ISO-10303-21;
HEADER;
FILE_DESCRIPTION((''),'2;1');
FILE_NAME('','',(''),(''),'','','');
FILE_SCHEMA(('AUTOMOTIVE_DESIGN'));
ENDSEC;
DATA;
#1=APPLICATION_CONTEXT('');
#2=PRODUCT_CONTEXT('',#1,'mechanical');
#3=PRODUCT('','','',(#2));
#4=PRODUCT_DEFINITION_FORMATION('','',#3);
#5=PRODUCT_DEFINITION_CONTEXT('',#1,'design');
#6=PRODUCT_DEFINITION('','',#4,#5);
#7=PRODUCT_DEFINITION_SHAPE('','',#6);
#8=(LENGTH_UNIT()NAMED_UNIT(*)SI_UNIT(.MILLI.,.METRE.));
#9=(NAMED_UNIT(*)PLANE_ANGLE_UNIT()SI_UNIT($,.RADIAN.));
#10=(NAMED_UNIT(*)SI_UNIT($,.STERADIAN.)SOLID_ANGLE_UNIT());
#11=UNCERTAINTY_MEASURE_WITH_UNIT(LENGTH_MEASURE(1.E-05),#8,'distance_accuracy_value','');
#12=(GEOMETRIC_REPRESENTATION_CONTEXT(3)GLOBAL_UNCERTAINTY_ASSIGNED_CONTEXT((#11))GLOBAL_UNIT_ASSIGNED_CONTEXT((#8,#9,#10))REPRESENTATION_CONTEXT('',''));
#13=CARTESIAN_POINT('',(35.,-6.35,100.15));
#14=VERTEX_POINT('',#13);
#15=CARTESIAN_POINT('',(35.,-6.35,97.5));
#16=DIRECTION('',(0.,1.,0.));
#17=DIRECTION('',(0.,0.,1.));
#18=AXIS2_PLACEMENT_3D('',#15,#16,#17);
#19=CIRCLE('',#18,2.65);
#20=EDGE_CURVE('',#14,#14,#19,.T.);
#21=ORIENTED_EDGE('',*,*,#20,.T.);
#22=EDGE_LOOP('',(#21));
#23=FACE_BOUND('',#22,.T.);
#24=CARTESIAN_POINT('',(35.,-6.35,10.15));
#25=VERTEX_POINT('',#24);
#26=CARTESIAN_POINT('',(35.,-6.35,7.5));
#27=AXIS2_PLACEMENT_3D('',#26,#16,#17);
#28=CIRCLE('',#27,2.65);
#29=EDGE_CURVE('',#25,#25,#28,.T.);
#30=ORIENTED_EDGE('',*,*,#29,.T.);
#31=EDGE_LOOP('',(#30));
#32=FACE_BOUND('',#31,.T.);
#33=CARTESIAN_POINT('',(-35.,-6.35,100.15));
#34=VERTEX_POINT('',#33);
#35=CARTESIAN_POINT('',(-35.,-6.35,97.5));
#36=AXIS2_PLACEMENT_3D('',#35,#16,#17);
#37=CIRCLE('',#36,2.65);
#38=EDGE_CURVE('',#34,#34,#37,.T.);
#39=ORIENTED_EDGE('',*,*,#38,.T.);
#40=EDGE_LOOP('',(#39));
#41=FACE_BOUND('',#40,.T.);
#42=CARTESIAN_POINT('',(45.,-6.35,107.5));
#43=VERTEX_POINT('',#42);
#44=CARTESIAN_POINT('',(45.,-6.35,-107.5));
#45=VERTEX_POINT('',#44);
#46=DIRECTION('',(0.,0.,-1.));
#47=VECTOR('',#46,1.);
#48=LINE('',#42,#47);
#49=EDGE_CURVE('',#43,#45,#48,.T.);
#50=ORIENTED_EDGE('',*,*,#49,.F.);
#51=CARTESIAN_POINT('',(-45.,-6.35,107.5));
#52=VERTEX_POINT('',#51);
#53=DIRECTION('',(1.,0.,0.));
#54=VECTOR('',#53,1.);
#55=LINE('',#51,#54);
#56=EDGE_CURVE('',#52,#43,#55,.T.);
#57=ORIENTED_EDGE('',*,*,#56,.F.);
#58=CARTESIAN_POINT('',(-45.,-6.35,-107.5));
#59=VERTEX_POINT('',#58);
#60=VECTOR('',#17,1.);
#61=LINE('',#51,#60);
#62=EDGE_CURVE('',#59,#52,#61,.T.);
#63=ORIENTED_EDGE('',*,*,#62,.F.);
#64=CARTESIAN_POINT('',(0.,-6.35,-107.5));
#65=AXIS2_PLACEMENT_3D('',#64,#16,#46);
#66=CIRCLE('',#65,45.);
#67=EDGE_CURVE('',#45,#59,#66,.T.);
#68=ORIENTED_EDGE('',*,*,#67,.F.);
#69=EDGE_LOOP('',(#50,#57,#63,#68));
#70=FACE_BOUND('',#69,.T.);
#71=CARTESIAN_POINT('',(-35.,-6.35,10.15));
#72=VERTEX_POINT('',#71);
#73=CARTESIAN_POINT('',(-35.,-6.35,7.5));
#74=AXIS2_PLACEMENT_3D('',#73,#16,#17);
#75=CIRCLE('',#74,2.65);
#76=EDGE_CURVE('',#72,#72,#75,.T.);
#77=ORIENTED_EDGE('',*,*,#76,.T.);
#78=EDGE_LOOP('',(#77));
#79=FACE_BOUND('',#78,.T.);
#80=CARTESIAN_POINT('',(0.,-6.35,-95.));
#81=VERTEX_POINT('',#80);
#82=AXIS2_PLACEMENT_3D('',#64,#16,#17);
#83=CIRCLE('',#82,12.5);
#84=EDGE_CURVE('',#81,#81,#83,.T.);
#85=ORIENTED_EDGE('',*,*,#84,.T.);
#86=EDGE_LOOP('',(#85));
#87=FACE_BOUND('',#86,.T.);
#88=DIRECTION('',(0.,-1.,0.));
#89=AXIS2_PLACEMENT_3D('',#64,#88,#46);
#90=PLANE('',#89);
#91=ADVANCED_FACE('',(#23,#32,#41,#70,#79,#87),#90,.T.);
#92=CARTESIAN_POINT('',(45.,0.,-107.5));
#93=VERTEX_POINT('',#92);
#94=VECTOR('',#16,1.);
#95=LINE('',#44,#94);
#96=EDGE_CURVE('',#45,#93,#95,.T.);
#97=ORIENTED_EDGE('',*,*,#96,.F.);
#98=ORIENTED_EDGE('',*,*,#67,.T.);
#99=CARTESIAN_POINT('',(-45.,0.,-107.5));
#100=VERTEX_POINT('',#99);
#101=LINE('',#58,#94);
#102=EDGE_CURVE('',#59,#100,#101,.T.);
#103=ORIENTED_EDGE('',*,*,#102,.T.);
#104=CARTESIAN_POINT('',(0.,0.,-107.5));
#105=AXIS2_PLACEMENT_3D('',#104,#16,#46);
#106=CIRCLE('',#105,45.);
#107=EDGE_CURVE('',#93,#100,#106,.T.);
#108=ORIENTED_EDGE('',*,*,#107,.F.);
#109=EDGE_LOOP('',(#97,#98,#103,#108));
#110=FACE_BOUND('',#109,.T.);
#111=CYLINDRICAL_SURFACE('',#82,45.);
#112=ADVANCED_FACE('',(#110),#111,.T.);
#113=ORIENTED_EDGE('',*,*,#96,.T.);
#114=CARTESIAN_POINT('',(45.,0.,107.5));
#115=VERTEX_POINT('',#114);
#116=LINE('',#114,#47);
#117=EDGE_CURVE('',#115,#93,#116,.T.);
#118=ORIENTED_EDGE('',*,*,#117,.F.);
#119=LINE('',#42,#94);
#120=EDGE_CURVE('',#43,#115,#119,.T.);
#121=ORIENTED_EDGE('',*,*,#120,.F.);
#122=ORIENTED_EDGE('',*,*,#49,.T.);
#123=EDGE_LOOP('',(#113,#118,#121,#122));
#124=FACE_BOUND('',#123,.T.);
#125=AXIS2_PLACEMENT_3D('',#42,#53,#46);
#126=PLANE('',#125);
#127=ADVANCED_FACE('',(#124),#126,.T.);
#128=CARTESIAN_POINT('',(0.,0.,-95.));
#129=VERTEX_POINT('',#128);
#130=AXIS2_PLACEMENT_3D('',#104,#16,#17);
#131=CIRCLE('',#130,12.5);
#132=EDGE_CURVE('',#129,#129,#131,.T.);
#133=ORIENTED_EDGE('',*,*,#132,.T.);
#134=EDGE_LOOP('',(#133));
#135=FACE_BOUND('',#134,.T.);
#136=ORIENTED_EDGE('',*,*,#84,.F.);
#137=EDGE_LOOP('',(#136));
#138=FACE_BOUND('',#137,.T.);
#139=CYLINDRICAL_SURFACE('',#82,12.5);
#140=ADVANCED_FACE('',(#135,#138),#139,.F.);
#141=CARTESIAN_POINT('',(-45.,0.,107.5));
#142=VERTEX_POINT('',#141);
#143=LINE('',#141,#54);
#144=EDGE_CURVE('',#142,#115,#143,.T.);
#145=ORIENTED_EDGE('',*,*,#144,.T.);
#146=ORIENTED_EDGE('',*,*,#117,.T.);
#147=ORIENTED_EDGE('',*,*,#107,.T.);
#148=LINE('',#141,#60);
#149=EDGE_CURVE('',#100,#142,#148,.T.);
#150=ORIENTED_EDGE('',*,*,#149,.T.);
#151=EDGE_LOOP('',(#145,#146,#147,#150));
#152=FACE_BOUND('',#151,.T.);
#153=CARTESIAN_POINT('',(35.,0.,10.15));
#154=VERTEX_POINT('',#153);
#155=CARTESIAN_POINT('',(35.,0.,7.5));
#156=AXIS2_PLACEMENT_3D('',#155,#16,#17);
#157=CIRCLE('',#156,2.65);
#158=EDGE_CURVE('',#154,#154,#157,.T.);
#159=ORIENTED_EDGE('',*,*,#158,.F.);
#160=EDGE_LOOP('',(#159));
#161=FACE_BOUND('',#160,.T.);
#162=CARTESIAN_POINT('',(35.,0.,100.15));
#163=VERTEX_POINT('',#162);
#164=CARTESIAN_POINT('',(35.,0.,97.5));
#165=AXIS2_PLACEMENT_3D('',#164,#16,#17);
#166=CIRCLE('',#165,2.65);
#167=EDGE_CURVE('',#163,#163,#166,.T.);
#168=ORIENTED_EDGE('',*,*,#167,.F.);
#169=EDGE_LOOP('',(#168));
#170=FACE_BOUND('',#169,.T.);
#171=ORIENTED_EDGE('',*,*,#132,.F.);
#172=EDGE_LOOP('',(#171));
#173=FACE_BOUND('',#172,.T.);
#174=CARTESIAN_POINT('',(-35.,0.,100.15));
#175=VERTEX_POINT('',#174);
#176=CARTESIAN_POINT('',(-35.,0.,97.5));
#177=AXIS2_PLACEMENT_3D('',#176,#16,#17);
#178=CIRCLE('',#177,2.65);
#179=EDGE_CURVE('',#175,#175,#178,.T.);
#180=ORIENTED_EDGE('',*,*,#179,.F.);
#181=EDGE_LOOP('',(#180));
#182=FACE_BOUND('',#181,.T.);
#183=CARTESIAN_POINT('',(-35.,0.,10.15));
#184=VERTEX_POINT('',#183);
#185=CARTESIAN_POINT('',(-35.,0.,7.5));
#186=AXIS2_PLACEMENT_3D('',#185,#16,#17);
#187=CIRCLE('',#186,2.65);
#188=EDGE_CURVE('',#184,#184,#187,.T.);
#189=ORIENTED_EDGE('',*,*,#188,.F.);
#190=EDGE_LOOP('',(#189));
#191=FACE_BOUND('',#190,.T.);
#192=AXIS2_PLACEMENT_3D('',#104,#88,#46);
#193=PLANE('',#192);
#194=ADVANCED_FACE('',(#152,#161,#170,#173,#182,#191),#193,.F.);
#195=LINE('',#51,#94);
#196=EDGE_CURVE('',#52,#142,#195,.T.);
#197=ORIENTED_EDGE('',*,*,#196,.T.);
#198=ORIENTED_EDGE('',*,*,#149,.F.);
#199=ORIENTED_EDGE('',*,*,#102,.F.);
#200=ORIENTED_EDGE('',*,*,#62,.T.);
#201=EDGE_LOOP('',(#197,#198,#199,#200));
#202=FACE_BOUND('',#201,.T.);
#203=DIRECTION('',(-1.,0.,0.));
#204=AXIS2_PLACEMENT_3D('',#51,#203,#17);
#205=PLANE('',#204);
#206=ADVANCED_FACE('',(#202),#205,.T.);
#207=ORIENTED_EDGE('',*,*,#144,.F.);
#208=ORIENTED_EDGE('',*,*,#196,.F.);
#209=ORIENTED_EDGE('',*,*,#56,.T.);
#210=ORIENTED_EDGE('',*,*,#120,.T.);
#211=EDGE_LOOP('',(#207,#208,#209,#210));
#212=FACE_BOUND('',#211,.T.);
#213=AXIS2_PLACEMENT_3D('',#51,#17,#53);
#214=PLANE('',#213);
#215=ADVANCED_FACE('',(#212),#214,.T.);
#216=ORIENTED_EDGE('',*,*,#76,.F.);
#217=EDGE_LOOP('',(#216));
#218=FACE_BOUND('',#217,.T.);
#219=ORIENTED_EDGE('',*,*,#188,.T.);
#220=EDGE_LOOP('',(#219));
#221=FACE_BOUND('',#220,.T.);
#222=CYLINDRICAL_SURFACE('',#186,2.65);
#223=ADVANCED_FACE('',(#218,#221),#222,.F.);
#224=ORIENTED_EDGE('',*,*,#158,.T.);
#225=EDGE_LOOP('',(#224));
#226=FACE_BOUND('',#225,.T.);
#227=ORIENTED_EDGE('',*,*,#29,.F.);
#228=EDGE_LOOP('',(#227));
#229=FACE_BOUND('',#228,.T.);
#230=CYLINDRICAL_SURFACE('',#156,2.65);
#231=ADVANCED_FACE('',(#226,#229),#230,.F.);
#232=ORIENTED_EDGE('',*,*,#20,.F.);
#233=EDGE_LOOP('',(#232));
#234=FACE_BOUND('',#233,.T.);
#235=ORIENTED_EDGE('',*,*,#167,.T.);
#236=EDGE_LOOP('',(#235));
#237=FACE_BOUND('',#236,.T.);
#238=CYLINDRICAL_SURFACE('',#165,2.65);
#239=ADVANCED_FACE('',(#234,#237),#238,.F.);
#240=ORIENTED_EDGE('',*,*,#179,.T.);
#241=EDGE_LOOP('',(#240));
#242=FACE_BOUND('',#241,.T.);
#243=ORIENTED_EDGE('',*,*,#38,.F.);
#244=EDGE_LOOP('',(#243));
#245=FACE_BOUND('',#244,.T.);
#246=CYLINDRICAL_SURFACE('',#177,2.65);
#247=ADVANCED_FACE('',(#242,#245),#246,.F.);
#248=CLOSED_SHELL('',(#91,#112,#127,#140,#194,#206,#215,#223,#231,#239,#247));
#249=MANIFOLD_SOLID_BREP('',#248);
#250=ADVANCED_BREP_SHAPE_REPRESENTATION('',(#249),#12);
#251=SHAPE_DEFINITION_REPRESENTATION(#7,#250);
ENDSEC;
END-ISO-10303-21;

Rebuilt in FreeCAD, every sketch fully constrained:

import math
import FreeCAD as App
import Part
import Sketcher
from FreeCAD import Vector
Q = App.Units.Quantity

doc = App.newDocument("Part")
body = doc.addObject("PartDesign::Body", "Body")

sketch1 = doc.addObject("Sketcher::SketchObject", "Sketch")
body.addObject(sketch1)
sketch1.AttachmentSupport = (doc.XZ_Plane, [""])
sketch1.MapMode = "FlatFace"
sketch1.addGeometry(Part.LineSegment(Vector(-45, -108, 0), Vector(-45, 108, 0)), False)
sketch1.addGeometry(Part.LineSegment(Vector(-45, 108, 0), Vector(45, 108, 0)), False)
sketch1.addGeometry(Part.LineSegment(Vector(45, 108, 0), Vector(45, -108, 0)), False)
sketch1.addGeometry(Part.ArcOfCircle(Part.Circle(Vector(0, -108, 0), Vector(0, 0, 1), 45), math.radians(180), math.radians(360)), False)
sketch1.addGeometry(Part.Circle(Vector(0, -108, 0), Vector(0, 0, 1), 12), False)
sketch1.addConstraint(Sketcher.Constraint("Coincident", 0, 2, 1, 1))
sketch1.addConstraint(Sketcher.Constraint("Coincident", 1, 2, 2, 1))
sketch1.addConstraint(Sketcher.Constraint("Tangent", 2, 2, 3, 2))
sketch1.addConstraint(Sketcher.Constraint("Tangent", 3, 1, 0, 1))
sketch1.addConstraint(Sketcher.Constraint("Vertical", 0))
sketch1.addConstraint(Sketcher.Constraint("Horizontal", 1))
sketch1.addConstraint(Sketcher.Constraint("Vertical", 2))
sketch1.addConstraint(Sketcher.Constraint("Coincident", 4, 3, 3, 3))
sketch1.addConstraint(Sketcher.Constraint("Symmetric", 0, 2, 2, 2, -1, 1))
sketch1.addConstraint(Sketcher.Constraint("Diameter", 4, Q("25 mm")))
sketch1.addConstraint(Sketcher.Constraint("Radius", 3, Q("45 mm")))
sketch1.addConstraint(Sketcher.Constraint("DistanceY", 0, 1, 0, 2, Q("215 mm")))
pad1 = doc.addObject("PartDesign::Pad", "Pad")
body.addObject(pad1)
pad1.Profile = sketch1
pad1.Length = 6.35

sketch2 = doc.addObject("Sketcher::SketchObject", "Sketch001")
body.addObject(sketch2)
sketch2.AttachmentSupport = (doc.XZ_Plane, [""])
sketch2.MapMode = "FlatFace"
sketch2.addGeometry(Part.Circle(Vector(-35, 7.5, 0), Vector(0, 0, 1), 2.6), False)
sketch2.addGeometry(Part.Circle(Vector(35, 7.5, 0), Vector(0, 0, 1), 2.6), False)
sketch2.addGeometry(Part.Circle(Vector(-35, 97.5, 0), Vector(0, 0, 1), 2.6), False)
sketch2.addGeometry(Part.Circle(Vector(35, 97.5, 0), Vector(0, 0, 1), 2.6), False)
sketch2.addConstraint(Sketcher.Constraint("Equal", 0, 1))
sketch2.addConstraint(Sketcher.Constraint("Equal", 1, 2))
sketch2.addConstraint(Sketcher.Constraint("Equal", 2, 3))
sketch2.addConstraint(Sketcher.Constraint("Symmetric", 0, 3, 1, 3, -2))
sketch2.addConstraint(Sketcher.Constraint("Symmetric", 2, 3, 3, 3, -2))
sketch2.addConstraint(Sketcher.Constraint("Vertical", 0, 3, 2, 3))
sketch2.addConstraint(Sketcher.Constraint("Diameter", 0, Q("5.3 mm")))
sketch2.addConstraint(Sketcher.Constraint("DistanceX", 0, 3, -1, 1, Q("35 mm")))
sketch2.addConstraint(Sketcher.Constraint("DistanceY", 0, 3, 2, 3, Q("90 mm")))
sketch2.addConstraint(Sketcher.Constraint("DistanceY", -1, 1, 0, 3, Q("7.5 mm")))
doc.recompute()
hole = doc.addObject("PartDesign::Hole", "Hole")
body.addObject(hole)
hole.Profile = sketch2
hole.ThreadType = "None"
hole.Diameter = 5.3
hole.DepthType = "ThroughAll"
hole.Reversed = True

doc.recompute()
